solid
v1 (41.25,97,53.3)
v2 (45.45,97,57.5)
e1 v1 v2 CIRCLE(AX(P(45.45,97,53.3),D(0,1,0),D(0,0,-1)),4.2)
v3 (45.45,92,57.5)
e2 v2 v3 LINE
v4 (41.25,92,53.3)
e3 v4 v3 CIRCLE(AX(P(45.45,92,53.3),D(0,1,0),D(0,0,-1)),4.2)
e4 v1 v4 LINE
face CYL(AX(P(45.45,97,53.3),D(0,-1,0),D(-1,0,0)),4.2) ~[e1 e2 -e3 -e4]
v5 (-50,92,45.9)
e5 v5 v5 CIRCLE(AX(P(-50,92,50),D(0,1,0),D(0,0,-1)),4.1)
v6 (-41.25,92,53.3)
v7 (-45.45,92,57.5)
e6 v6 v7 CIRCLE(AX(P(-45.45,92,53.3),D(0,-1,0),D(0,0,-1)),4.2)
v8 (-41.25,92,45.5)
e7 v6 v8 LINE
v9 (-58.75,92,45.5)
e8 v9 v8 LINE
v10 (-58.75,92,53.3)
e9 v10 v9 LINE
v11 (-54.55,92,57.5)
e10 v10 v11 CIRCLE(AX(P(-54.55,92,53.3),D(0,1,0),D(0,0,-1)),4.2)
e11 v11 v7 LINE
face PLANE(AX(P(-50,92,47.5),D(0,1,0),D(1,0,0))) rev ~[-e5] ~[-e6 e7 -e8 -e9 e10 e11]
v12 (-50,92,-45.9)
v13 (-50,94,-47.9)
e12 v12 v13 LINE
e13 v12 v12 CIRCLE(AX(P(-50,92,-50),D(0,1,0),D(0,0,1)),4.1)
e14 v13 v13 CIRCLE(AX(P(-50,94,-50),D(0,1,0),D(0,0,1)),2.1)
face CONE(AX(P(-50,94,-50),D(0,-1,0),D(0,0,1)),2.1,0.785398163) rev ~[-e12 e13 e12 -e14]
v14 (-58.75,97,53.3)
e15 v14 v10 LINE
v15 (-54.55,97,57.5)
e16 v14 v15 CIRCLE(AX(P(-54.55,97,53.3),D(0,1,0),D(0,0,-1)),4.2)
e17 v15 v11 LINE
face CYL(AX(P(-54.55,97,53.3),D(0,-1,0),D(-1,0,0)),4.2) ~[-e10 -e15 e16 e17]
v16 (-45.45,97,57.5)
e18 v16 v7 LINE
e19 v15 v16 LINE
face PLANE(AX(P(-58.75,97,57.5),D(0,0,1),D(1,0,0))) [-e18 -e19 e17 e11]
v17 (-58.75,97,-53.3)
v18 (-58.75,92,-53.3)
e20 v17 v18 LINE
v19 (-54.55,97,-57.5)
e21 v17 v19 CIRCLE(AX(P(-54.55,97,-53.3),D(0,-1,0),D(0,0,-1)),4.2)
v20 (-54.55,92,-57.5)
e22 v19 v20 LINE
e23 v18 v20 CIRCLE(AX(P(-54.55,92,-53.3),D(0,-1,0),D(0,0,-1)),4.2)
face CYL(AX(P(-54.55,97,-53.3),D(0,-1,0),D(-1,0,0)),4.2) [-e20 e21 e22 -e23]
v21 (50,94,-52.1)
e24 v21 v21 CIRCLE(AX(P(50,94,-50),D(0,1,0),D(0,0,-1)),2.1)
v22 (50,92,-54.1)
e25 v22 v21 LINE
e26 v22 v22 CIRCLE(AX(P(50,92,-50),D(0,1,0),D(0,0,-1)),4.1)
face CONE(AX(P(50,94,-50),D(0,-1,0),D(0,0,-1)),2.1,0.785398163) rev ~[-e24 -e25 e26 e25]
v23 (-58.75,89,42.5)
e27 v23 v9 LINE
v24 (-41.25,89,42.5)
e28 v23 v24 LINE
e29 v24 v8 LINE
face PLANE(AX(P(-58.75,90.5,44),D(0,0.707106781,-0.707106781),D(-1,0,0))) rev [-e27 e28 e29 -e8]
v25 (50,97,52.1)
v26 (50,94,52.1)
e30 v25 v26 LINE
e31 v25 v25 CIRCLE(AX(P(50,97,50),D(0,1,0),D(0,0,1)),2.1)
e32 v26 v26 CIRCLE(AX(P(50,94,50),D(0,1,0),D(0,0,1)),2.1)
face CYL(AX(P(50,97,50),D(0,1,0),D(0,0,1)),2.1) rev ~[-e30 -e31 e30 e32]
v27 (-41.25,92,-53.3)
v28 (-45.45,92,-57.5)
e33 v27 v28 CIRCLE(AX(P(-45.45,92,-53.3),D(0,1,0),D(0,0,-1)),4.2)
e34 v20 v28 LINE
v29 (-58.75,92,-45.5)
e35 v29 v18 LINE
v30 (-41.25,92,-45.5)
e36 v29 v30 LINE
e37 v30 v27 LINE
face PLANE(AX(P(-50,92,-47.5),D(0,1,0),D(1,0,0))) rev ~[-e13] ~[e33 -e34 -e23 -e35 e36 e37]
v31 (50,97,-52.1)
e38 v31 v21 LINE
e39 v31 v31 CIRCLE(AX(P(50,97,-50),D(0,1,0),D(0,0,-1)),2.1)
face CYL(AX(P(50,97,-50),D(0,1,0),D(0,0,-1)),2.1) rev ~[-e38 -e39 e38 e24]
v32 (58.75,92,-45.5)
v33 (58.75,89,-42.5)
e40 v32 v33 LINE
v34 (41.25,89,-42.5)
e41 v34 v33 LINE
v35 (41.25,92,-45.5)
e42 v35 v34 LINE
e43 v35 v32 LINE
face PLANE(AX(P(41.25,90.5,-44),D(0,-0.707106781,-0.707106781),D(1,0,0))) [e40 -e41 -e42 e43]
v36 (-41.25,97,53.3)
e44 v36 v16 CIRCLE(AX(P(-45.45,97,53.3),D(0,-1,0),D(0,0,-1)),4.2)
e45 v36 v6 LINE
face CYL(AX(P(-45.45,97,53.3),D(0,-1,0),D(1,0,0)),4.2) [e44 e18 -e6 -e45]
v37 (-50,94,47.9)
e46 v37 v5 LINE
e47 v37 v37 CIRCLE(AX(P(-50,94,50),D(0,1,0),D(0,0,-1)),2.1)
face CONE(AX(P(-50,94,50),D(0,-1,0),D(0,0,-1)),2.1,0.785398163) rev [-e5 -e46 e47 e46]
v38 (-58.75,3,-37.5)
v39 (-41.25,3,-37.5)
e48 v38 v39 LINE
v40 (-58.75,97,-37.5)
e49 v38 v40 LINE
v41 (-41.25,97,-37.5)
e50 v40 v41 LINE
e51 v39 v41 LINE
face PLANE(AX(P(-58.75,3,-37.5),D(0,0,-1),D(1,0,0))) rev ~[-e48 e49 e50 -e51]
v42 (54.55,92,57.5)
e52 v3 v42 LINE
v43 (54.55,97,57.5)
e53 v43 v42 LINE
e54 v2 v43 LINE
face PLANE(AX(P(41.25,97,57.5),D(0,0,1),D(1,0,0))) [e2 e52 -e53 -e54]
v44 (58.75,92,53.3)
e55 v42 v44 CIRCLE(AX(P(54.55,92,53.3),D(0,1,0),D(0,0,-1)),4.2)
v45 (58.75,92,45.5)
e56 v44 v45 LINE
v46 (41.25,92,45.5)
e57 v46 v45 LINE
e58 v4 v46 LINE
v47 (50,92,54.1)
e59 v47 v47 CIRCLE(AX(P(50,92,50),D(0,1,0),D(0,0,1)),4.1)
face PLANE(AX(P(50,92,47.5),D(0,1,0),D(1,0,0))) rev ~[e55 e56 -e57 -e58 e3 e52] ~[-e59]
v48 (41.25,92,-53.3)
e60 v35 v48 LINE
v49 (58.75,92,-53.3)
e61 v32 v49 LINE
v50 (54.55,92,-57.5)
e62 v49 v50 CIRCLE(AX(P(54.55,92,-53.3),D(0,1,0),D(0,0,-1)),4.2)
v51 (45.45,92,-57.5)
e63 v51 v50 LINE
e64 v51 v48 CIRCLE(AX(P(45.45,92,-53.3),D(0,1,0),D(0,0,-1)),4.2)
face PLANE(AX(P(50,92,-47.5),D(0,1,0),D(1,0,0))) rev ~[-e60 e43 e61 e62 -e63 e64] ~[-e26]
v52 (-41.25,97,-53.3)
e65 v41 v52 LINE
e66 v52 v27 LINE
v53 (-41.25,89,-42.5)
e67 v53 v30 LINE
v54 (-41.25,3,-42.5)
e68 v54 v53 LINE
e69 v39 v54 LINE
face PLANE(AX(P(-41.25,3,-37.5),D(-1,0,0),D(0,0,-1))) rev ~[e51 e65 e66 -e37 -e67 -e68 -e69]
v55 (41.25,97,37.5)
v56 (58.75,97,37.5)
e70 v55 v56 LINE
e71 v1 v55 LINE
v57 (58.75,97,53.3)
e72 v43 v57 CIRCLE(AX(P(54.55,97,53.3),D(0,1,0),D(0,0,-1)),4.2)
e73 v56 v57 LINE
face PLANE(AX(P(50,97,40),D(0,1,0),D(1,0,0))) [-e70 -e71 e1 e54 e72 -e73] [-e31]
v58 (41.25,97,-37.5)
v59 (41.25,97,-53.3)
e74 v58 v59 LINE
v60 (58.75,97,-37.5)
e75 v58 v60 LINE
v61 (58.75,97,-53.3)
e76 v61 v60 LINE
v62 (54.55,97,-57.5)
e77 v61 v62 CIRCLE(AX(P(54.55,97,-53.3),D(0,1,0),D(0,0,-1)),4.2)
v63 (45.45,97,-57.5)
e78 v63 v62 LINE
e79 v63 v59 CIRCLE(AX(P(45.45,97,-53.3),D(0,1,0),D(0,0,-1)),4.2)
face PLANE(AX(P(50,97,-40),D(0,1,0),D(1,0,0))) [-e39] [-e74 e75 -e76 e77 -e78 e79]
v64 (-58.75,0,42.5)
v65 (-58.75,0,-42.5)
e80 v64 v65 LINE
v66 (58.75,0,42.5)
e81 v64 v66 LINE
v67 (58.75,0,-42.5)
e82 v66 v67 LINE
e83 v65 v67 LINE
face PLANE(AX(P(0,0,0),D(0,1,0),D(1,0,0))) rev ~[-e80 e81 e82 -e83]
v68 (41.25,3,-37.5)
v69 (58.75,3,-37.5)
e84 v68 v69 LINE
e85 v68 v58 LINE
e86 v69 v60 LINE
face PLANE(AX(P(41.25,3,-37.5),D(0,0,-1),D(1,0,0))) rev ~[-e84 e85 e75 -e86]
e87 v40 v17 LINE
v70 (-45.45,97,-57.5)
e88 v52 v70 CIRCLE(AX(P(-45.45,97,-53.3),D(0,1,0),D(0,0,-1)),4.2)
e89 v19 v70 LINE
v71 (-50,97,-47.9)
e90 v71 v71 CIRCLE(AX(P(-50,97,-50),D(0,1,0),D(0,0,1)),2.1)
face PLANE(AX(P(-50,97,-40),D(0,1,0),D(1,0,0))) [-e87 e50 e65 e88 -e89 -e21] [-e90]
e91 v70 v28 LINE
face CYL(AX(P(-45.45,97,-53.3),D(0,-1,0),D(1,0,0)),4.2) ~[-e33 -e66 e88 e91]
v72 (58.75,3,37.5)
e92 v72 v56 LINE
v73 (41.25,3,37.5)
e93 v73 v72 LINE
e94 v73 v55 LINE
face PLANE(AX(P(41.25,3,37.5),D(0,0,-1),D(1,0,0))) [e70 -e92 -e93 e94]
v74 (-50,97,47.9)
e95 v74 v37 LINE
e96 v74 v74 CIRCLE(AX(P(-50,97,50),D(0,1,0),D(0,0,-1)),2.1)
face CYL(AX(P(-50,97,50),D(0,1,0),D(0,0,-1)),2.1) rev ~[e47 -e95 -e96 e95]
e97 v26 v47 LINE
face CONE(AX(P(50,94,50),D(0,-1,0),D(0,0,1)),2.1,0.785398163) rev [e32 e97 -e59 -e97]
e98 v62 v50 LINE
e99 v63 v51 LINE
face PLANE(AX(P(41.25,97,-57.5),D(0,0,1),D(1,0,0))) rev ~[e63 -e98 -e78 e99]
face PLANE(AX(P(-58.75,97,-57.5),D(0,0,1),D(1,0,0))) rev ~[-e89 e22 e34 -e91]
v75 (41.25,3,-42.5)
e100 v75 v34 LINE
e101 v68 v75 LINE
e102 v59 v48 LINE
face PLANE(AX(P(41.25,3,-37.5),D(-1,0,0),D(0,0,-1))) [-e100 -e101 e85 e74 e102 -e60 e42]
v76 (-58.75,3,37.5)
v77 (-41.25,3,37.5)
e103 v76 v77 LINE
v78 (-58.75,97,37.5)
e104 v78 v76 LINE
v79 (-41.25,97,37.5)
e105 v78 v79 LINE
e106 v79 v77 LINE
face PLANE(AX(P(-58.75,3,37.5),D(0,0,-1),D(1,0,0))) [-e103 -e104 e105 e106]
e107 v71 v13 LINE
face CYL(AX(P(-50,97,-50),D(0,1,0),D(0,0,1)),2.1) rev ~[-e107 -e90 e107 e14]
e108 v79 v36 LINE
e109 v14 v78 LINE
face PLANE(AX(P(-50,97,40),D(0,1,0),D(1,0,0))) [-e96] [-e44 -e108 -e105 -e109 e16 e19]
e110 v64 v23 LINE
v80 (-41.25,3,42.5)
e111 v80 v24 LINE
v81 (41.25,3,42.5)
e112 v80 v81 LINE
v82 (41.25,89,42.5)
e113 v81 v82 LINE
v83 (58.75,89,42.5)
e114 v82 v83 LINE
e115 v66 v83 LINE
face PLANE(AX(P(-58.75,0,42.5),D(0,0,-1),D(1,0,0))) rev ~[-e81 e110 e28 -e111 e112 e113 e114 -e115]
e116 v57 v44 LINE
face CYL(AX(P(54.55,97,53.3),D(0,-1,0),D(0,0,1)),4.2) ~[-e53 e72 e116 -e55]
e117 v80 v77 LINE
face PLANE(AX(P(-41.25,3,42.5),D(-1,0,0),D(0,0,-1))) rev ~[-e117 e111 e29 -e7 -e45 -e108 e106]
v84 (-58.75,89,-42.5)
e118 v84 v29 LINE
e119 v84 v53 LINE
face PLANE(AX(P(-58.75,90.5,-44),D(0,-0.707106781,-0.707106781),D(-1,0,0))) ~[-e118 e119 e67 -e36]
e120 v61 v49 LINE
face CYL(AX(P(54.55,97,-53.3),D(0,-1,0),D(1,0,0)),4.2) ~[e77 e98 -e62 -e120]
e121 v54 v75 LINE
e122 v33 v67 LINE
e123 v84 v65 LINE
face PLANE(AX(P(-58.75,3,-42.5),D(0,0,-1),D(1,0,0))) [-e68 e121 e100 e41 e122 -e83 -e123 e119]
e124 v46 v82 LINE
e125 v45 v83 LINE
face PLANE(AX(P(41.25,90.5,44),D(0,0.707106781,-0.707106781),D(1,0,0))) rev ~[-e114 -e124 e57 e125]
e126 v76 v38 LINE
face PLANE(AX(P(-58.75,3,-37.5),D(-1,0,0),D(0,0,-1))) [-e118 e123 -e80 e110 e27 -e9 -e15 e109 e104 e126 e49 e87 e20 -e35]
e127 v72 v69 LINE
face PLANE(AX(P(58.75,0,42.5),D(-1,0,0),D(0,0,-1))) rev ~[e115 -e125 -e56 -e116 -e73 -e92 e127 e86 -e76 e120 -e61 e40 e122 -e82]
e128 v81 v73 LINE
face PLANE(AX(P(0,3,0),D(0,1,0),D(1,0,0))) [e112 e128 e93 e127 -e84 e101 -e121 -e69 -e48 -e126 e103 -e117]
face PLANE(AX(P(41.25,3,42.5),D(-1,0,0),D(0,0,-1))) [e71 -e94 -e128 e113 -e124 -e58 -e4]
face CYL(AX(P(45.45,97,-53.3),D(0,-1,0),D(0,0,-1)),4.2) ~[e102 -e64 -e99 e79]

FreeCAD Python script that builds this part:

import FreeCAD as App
import Part
import Sketcher
from FreeCAD import Vector
Q = App.Units.Quantity


def edges_at(feature, points):
    """Names of the edges that pass closest to the given points."""
    edges = feature.Shape.Edges
    near = lambda p: min(range(len(edges)), key=lambda i: edges[i].distToShape(Part.Vertex(*p))[0])
    return sorted({f"Edge{near(p) + 1}" for p in points})


def add_polygon(sketch, points):
    """Adds a closed chain of lines whose ends are joined by coincident constraints."""
    first, n = sketch.GeometryCount, len(points)
    for a, b in zip(points, points[1:] + points[:1]):
        sketch.addGeometry(Part.LineSegment(App.Vector(*a, 0), App.Vector(*b, 0)), False)
    for i in range(n):
        sketch.addConstraint(Sketcher.Constraint("Coincident", first + i, 2, first + (i + 1) % n, 1))

doc = App.newDocument("Part")
body = doc.addObject("PartDesign::Body", "Body")

sketch1 = doc.addObject("Sketcher::SketchObject", "Sketch")
body.addObject(sketch1)
sketch1.AttachmentSupport = (doc.XZ_Plane, [""])
sketch1.MapMode = "FlatFace"
add_polygon(sketch1, [(-59, -42), (-59, 42), (59, 42), (59, -42)])
sketch1.addConstraint([
    Sketcher.Constraint("Vertical", 0),
    Sketcher.Constraint("Horizontal", 1),
    Sketcher.Constraint("Vertical", 2),
    Sketcher.Constraint("Horizontal", 3),
    Sketcher.Constraint("Symmetric", 0, 2, 2, 2, -1, 1),
    Sketcher.Constraint("DistanceY", 0, 1, 0, 2, Q("85 mm")),
    Sketcher.Constraint("DistanceX", 1, 1, 1, 2, Q("117.5 mm")),
])
pad1 = doc.addObject("PartDesign::Pad", "Pad")
body.addObject(pad1)
pad1.Profile = sketch1
pad1.Length = 3
pad1.Reversed = True

sketch2 = doc.addObject("Sketcher::SketchObject", "Sketch001")
body.addObject(sketch2)
sketch2.AttachmentSupport = (doc.XZ_Plane, [""])
sketch2.MapMode = "FlatFace"
sketch2.AttachmentOffset = App.Placement(Vector(0, 0, -3), App.Rotation())
add_polygon(sketch2, [(-59, -42), (-59, -38), (-41, -38), (-41, -42)])
add_polygon(sketch2, [(41, -42), (41, -38), (59, -38), (59, -42)])
add_polygon(sketch2, [(41, 38), (41, 42), (59, 42), (59, 38)])
add_polygon(sketch2, [(-59, 38), (-59, 42), (-41, 42), (-41, 38)])
sketch2.addConstraint([
    Sketcher.Constraint("Vertical", 0),
    Sketcher.Constraint("Horizontal", 1),
    Sketcher.Constraint("Vertical", 2),
    Sketcher.Constraint("Horizontal", 3),
    Sketcher.Constraint("Vertical", 4),
    Sketcher.Constraint("Horizontal", 5),
    Sketcher.Constraint("Vertical", 6),
    Sketcher.Constraint("Horizontal", 7),
    Sketcher.Constraint("Vertical", 8),
    Sketcher.Constraint("Horizontal", 9),
    Sketcher.Constraint("Vertical", 10),
    Sketcher.Constraint("Horizontal", 11),
    Sketcher.Constraint("Vertical", 12),
    Sketcher.Constraint("Horizontal", 13),
    Sketcher.Constraint("Vertical", 14),
    Sketcher.Constraint("Horizontal", 15),
    Sketcher.Constraint("Symmetric", 2, 2, 8, 2, -1, 1),
    Sketcher.Constraint("Symmetric", 0, 2, 10, 2, -1, 1),
    Sketcher.Constraint("Symmetric", 6, 2, 12, 2, -1, 1),
    Sketcher.Constraint("Symmetric", 4, 2, 14, 2, -1, 1),
    Sketcher.Constraint("Symmetric", 1, 2, 4, 2, -2),
    Sketcher.Constraint("Symmetric", 3, 2, 6, 2, -2),
    Sketcher.Constraint("DistanceY", 0, 1, 0, 2, Q("5 mm")),
    Sketcher.Constraint("DistanceX", 1, 1, 1, 2, Q("17.5 mm")),
    Sketcher.Constraint("DistanceX", 0, 2, 4, 2, Q("100 mm")),
    Sketcher.Constraint("DistanceY", 4, 2, 8, 2, Q("80 mm")),
])
pad2 = doc.addObject("PartDesign::Pad", "Pad001")
body.addObject(pad2)
pad2.Profile = sketch2
pad2.Length = 94
pad2.Reversed = True

sketch3 = doc.addObject("Sketcher::SketchObject", "Sketch002")
body.addObject(sketch3)
sketch3.AttachmentSupport = (doc.XZ_Plane, [""])
sketch3.MapMode = "FlatFace"
sketch3.AttachmentOffset = App.Placement(Vector(0, 0, -97), App.Rotation())
add_polygon(sketch3, [(-58.8, -57.5), (-58.8, -37.5), (-41.2, -37.5), (-41.2, -57.5)])
sketch3.addGeometry(Part.Circle(Vector(-50, -50, 0), Vector(0, 0, 1), 2.1), False)
add_polygon(sketch3, [(41.2, -57.5), (41.2, -37.5), (58.8, -37.5), (58.8, -57.5)])
sketch3.addGeometry(Part.Circle(Vector(50, -50, 0), Vector(0, 0, 1), 2.1), False)
add_polygon(sketch3, [(41.2, 37.5), (41.2, 57.5), (58.8, 57.5), (58.8, 37.5)])
sketch3.addGeometry(Part.Circle(Vector(50, 50, 0), Vector(0, 0, 1), 2.1), False)
add_polygon(sketch3, [(-58.8, 37.5), (-58.8, 57.5), (-41.2, 57.5), (-41.2, 37.5)])
sketch3.addGeometry(Part.Circle(Vector(-50, 50, 0), Vector(0, 0, 1), 2.1), False)
sketch3.addConstraint([
    Sketcher.Constraint("Vertical", 0),
    Sketcher.Constraint("Horizontal", 1),
    Sketcher.Constraint("Vertical", 2),
    Sketcher.Constraint("Horizontal", 3),
    Sketcher.Constraint("Vertical", 5),
    Sketcher.Constraint("Horizontal", 6),
    Sketcher.Constraint("Vertical", 7),
    Sketcher.Constraint("Horizontal", 8),
    Sketcher.Constraint("Vertical", 10),
    Sketcher.Constraint("Horizontal", 11),
    Sketcher.Constraint("Vertical", 12),
    Sketcher.Constraint("Horizontal", 13),
    Sketcher.Constraint("Vertical", 15),
    Sketcher.Constraint("Horizontal", 16),
    Sketcher.Constraint("Vertical", 17),
    Sketcher.Constraint("Horizontal", 18),
    Sketcher.Constraint("Equal", 4, 9),
    Sketcher.Constraint("Equal", 9, 14),
    Sketcher.Constraint("Equal", 14, 19),
    Sketcher.Constraint("Symmetric", 4, 3, 14, 3, -1, 1),
    Sketcher.Constraint("Symmetric", 9, 3, 19, 3, -1, 1),
    Sketcher.Constraint("Symmetric", 2, 2, 10, 2, -1, 1),
    Sketcher.Constraint("Symmetric", 0, 2, 12, 2, -1, 1),
    Sketcher.Constraint("Symmetric", 7, 2, 15, 2, -1, 1),
    Sketcher.Constraint("Symmetric", 5, 2, 17, 2, -1, 1),
    Sketcher.Constraint("Symmetric", 4, 3, 9, 3, -2),
    Sketcher.Constraint("Symmetric", 1, 2, 5, 2, -2),
    Sketcher.Constraint("Symmetric", 3, 2, 7, 2, -2),
    Sketcher.Constraint("Diameter", 4, Q("4.2 mm")),
    Sketcher.Constraint("DistanceY", 0, 1, 0, 2, Q("20 mm")),
    Sketcher.Constraint("DistanceX", 1, 1, 1, 2, Q("17.5 mm")),
    Sketcher.Constraint("DistanceX", 4, 3, -1, 1, Q("50 mm")),
    Sketcher.Constraint("DistanceY", 4, 3, -1, 1, Q("50 mm")),
    Sketcher.Constraint("DistanceX", 1, 2, 6, 2, Q("100 mm")),
    Sketcher.Constraint("DistanceY", 5, 2, 10, 2, Q("95 mm")),
])
pad3 = doc.addObject("PartDesign::Pad", "Pad002")
body.addObject(pad3)
pad3.Profile = sketch3
pad3.Length = 5
doc.recompute()

chamfer = doc.addObject("PartDesign::Chamfer", "Chamfer")
body.addObject(chamfer)
chamfer.Base = (pad3, edges_at(pad3, [
    (50, 92, 47.9),
    (-50, 92, 52.1),
    (-50, 92, -52.1),
    (50, 92, -47.9),
]))
chamfer.Size = 2
doc.recompute()

chamfer2 = doc.addObject("PartDesign::Chamfer", "Chamfer001")
body.addObject(chamfer2)
chamfer2.Base = (chamfer, edges_at(chamfer, [
    (50, 92, 42.5),
    (-50, 92, 42.5),
    (-50, 92, -42.5),
    (50, 92, -42.5),
]))
chamfer2.Size = 3
doc.recompute()

fillet = doc.addObject("PartDesign::Fillet", "Fillet")
body.addObject(fillet)
fillet.Base = (chamfer2, edges_at(chamfer2, [
    (41.25, 94.5, 57.5),
    (58.75, 94.5, 57.5),
    (-58.75, 94.5, 57.5),
    (-41.25, 94.5, 57.5),
    (-41.25, 94.5, -57.5),
    (-58.75, 94.5, -57.5),
    (58.75, 94.5, -57.5),
    (41.25, 94.5, -57.5),
]))
fillet.Radius = 4.2

doc.recompute()
